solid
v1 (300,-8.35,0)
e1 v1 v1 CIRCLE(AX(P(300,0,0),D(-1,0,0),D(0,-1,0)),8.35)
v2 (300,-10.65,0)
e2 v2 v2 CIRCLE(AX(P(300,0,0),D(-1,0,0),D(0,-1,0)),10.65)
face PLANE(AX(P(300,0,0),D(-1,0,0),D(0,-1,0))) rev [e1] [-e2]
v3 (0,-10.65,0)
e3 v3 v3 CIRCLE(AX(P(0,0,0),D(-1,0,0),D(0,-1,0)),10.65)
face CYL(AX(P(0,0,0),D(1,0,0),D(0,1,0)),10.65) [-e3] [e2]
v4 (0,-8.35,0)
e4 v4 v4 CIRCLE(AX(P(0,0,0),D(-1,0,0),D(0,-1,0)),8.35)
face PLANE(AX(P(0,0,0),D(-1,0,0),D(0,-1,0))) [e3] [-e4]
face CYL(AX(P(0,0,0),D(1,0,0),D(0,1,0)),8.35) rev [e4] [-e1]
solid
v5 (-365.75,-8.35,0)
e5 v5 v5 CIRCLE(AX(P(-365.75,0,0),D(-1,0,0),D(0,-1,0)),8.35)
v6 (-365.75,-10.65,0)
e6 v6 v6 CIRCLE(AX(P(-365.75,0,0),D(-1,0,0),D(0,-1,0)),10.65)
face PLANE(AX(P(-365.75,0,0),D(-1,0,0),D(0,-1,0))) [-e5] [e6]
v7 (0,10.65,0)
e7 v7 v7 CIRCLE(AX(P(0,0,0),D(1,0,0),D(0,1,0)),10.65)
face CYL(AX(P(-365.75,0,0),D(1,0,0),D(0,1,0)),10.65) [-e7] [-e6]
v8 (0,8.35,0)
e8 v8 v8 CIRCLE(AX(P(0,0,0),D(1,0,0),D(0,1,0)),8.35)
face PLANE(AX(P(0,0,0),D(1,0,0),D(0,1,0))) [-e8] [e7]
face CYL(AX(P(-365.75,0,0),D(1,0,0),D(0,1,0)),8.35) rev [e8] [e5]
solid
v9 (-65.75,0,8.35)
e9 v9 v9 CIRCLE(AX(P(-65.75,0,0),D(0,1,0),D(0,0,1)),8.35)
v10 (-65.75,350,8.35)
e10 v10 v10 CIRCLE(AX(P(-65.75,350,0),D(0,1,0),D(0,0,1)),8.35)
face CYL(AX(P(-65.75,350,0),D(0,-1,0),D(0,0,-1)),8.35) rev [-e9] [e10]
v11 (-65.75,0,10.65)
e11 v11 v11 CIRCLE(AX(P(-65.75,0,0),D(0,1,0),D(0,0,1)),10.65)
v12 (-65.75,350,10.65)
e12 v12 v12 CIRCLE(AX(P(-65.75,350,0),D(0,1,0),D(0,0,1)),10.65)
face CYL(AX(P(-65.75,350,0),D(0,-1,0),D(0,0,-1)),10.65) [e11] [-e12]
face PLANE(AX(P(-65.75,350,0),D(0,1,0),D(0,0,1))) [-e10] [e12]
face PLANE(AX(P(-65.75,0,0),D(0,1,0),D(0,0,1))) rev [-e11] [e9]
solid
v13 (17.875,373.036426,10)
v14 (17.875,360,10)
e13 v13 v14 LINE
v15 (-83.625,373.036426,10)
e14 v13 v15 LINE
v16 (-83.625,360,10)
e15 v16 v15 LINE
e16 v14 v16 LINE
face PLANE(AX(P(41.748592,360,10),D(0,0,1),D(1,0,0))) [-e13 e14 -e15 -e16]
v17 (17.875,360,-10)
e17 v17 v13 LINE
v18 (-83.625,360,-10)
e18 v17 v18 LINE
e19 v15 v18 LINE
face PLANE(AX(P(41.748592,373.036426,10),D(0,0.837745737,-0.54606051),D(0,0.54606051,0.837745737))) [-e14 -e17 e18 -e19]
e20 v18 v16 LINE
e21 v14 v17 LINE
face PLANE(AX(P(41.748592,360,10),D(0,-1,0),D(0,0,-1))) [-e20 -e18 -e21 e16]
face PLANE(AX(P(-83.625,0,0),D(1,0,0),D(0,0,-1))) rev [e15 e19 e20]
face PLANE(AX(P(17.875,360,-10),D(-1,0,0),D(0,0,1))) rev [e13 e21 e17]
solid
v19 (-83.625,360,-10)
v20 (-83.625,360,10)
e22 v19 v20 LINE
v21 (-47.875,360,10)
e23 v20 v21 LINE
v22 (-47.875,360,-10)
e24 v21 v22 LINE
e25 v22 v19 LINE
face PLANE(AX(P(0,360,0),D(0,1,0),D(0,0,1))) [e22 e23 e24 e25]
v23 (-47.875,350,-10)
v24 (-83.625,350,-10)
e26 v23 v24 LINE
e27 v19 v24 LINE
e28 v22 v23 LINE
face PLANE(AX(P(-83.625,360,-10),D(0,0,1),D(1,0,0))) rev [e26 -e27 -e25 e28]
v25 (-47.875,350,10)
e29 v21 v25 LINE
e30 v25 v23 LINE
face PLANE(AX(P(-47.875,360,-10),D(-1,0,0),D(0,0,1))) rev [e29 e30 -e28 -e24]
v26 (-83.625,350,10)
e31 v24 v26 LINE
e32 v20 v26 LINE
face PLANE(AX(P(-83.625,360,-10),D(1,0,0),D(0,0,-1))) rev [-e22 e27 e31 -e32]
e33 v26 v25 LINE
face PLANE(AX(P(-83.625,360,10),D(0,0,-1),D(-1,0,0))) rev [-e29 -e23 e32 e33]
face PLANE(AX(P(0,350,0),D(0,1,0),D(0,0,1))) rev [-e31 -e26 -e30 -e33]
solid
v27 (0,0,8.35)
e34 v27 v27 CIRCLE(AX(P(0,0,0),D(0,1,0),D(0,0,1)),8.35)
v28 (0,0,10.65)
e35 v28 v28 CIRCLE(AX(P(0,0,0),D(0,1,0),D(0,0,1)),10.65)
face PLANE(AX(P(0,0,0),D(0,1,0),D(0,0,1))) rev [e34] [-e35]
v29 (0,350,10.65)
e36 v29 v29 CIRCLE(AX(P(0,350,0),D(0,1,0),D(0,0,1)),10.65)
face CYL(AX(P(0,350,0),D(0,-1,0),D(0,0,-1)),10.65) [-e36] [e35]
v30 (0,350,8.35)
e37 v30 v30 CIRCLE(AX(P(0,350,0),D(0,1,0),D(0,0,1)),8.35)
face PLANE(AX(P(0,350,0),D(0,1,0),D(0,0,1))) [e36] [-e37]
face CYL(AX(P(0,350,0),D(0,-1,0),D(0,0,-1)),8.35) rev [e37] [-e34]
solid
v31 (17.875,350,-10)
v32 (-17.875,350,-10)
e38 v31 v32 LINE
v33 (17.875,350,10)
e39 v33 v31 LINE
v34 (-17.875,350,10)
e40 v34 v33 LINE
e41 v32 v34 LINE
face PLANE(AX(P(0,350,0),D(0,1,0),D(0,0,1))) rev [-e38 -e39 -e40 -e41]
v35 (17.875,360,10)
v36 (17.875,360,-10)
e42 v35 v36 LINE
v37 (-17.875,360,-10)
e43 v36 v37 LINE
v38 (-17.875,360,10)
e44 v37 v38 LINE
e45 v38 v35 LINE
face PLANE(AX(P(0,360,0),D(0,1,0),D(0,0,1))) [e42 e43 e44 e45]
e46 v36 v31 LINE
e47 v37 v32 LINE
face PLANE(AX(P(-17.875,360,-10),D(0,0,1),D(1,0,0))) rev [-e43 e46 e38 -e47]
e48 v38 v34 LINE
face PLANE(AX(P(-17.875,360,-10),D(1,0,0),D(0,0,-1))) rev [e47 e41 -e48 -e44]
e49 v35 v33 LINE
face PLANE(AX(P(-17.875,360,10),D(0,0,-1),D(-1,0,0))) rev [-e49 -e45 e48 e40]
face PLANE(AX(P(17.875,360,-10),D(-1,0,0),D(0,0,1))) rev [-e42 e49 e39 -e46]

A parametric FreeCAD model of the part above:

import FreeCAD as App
import Part
import Sketcher
Q = App.Units.Quantity


def add_polygon(sketch, points):
    """Adds a closed chain of lines whose ends are joined by coincident constraints."""
    first, n = sketch.GeometryCount, len(points)
    for a, b in zip(points, points[1:] + points[:1]):
        sketch.addGeometry(Part.LineSegment(App.Vector(*a, 0), App.Vector(*b, 0)), False)
    for i in range(n):
        sketch.addConstraint(Sketcher.Constraint("Coincident", first + i, 2, first + (i + 1) % n, 1))

doc = App.newDocument("Part")
body = doc.addObject("PartDesign::Body", "Body")

sketch1 = body.newObject("Sketcher::SketchObject", "Sketch")
sketch1.AttachmentSupport = (doc.getObject("XZ_Plane"), [""])
sketch1.MapMode = "FlatFace"
sketch1.addGeometry([
    Part.Circle(App.Vector(-66, 0, 0), App.Vector(0, 0, 1), 11),
    Part.Circle(App.Vector(-66, 0, 0), App.Vector(0, 0, 1), 8),
], False)
sketch1.addConstraint([
    Sketcher.Constraint("Coincident", 1, 3, 0, 3),
    Sketcher.Constraint("PointOnObject", 0, 3, -1),
    Sketcher.Constraint("Diameter", 0, Q("21.3 mm")),
    Sketcher.Constraint("Diameter", 1, Q("16.7 mm")),
    Sketcher.Constraint("DistanceX", 0, 3, -1, 1, Q("65.75 mm")),
])
pad1 = body.newObject("PartDesign::Pad", "Pad")
pad1.Profile = sketch1
pad1.Length = 350
pad1.Reversed = True
body2 = doc.addObject("PartDesign::Body", "Body001")

sketch2 = body2.newObject("Sketcher::SketchObject", "Sketch001")
sketch2.AttachmentSupport = (doc.getObject("XZ_Plane001"), [""])
sketch2.MapMode = "FlatFace"
sketch2.addGeometry([
    Part.Circle(App.Vector(0, 0, 0), App.Vector(0, 0, 1), 11),
    Part.Circle(App.Vector(0, 0, 0), App.Vector(0, 0, 1), 8),
], False)
sketch2.addConstraint([
    Sketcher.Constraint("Coincident", 0, 3, -1, 1),
    Sketcher.Constraint("Coincident", 1, 3, -1, 1),
    Sketcher.Constraint("Diameter", 0, Q("21.3 mm")),
    Sketcher.Constraint("Diameter", 1, Q("16.7 mm")),
])
pad2 = body2.newObject("PartDesign::Pad", "Pad001")
pad2.Profile = sketch2
pad2.Length = 350
pad2.Reversed = True
body3 = doc.addObject("PartDesign::Body", "Body002")

sketch3 = body3.newObject("Sketcher::SketchObject", "Sketch002")
sketch3.AttachmentSupport = (doc.getObject("YZ_Plane002"), [""])
sketch3.MapMode = "FlatFace"
sketch3.addGeometry([
    Part.Circle(App.Vector(0, 0, 0), App.Vector(0, 0, 1), 11),
    Part.Circle(App.Vector(0, 0, 0), App.Vector(0, 0, 1), 8),
], False)
sketch3.addConstraint([
    Sketcher.Constraint("Coincident", 0, 3, -1, 1),
    Sketcher.Constraint("Coincident", 1, 3, -1, 1),
    Sketcher.Constraint("Diameter", 0, Q("21.3 mm")),
    Sketcher.Constraint("Diameter", 1, Q("16.7 mm")),
])
pad3 = body3.newObject("PartDesign::Pad", "Pad002")
pad3.Profile = sketch3
pad3.Length = 300
body4 = doc.addObject("PartDesign::Body", "Body003")

sketch4 = body4.newObject("Sketcher::SketchObject", "Sketch003")
sketch4.AttachmentSupport = (doc.getObject("YZ_Plane003"), [""])
sketch4.MapMode = "FlatFace"
sketch4.addGeometry([
    Part.Circle(App.Vector(0, 0, 0), App.Vector(0, 0, 1), 11),
    Part.Circle(App.Vector(0, 0, 0), App.Vector(0, 0, 1), 8),
], False)
sketch4.addConstraint([
    Sketcher.Constraint("Coincident", 0, 3, -1, 1),
    Sketcher.Constraint("Coincident", 1, 3, -1, 1),
    Sketcher.Constraint("Diameter", 0, Q("21.3 mm")),
    Sketcher.Constraint("Diameter", 1, Q("16.7 mm")),
])
pad4 = body4.newObject("PartDesign::Pad", "Pad003")
pad4.Profile = sketch4
pad4.Length = 365.75
pad4.Reversed = True
body5 = doc.addObject("PartDesign::Body", "Body004")

sketch5 = body5.newObject("Sketcher::SketchObject", "Sketch004")
sketch5.AttachmentSupport = (doc.getObject("XZ_Plane004"), [""])
sketch5.MapMode = "FlatFace"
sketch5.AttachmentOffset = App.Placement(App.Vector(0, 0, -350), App.Rotation())
add_polygon(sketch5, [(-84, -10), (-84, 10), (-48, 10), (-48, -10)])
sketch5.addConstraint([
    Sketcher.Constraint("Vertical", 0),
    Sketcher.Constraint("Horizontal", 1),
    Sketcher.Constraint("Vertical", 2),
    Sketcher.Constraint("Horizontal", 3),
    Sketcher.Constraint("DistanceY", 0, 1, 0, 2, Q("20 mm")),
    Sketcher.Constraint("DistanceY", -1, 1, 0, 2, Q("10 mm")),
    Sketcher.Constraint("DistanceX", 1, 1, 1, 2, Q("35.75 mm")),
    Sketcher.Constraint("DistanceX", 0, 2, -1, 1, Q("83.625 mm")),
])
pad5 = body5.newObject("PartDesign::Pad", "Pad004")
pad5.Profile = sketch5
pad5.Length = 10
pad5.Reversed = True
body6 = doc.addObject("PartDesign::Body", "Body005")

sketch6 = body6.newObject("Sketcher::SketchObject", "Sketch005")
sketch6.AttachmentSupport = (doc.getObject("XZ_Plane005"), [""])
sketch6.MapMode = "FlatFace"
sketch6.AttachmentOffset = App.Placement(App.Vector(0, 0, -350), App.Rotation())
add_polygon(sketch6, [(-18, -10), (-18, 10), (18, 10), (18, -10)])
sketch6.addConstraint([
    Sketcher.Constraint("Vertical", 0),
    Sketcher.Constraint("Horizontal", 1),
    Sketcher.Constraint("Vertical", 2),
    Sketcher.Constraint("Horizontal", 3),
    Sketcher.Constraint("Symmetric", 0, 2, 2, 2, -1, 1),
    Sketcher.Constraint("DistanceY", 0, 1, 0, 2, Q("20 mm")),
    Sketcher.Constraint("DistanceX", 1, 1, 1, 2, Q("35.75 mm")),
])
pad6 = body6.newObject("PartDesign::Pad", "Pad005")
pad6.Profile = sketch6
pad6.Length = 10
pad6.Reversed = True
body7 = doc.addObject("PartDesign::Body", "Body006")

sketch7 = body7.newObject("Sketcher::SketchObject", "Sketch006")
sketch7.AttachmentSupport = (doc.getObject("YZ_Plane006"), [""])
sketch7.MapMode = "FlatFace"
sketch7.AttachmentOffset = App.Placement(App.Vector(0, 0, -83.625), App.Rotation())
add_polygon(sketch7, [(360, 10), (373, 10), (360, -10)])
sketch7.addConstraint([
    Sketcher.Constraint("Horizontal", 0),
    Sketcher.Constraint("Vertical", 2),
    Sketcher.Constraint("DistanceY", 2, 1, 2, 2, Q("20 mm")),
    Sketcher.Constraint("DistanceY", -1, 1, 0, 2, Q("10 mm")),
    Sketcher.Constraint("DistanceX", -1, 1, 1, 2, Q("360 mm")),
    Sketcher.Constraint("DistanceX", 0, 1, 0, 2, Q("13.036426 mm")),
])
pad7 = body7.newObject("PartDesign::Pad", "Pad006")
pad7.Profile = sketch7
pad7.Length = 101.5

doc.recompute()
